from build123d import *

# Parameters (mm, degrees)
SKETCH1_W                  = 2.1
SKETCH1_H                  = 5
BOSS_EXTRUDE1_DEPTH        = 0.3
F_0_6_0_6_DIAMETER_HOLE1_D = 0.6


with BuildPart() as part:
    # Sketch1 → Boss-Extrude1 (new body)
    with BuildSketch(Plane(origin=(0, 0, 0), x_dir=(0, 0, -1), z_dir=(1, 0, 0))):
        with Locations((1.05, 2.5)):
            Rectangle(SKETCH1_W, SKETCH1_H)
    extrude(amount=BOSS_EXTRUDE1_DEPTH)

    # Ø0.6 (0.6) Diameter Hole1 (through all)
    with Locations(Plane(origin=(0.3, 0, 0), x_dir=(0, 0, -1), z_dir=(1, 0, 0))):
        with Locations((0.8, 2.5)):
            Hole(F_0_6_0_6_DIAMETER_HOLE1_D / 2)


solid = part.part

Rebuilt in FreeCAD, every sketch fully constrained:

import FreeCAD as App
import Part
import Sketcher

V = App.Vector

doc = App.newDocument("Part")
body = doc.addObject("PartDesign::Body", "Body")

sketch1 = body.newObject("Sketcher::SketchObject", "Sketch")
sketch1.AttachmentSupport = (doc.getObject("YZ_Plane"), [""])
sketch1.MapMode = "FlatFace"
sketch1.addGeometry([
    Part.LineSegment(V(5, 0, 0), V(0, 0, 0)),
    Part.LineSegment(V(0, 0, 0), V(0, -2.1, 0)),
    Part.LineSegment(V(0, -2.1, 0), V(5, -2.1, 0)),
    Part.LineSegment(V(5, -2.1, 0), V(5, 0, 0)),
], False)
sketch1.addConstraint([
    Sketcher.Constraint("Coincident", 0, 2, 1, 1),
    Sketcher.Constraint("Coincident", 1, 2, 2, 1),
    Sketcher.Constraint("Coincident", 2, 2, 3, 1),
    Sketcher.Constraint("Coincident", 3, 2, 0, 1),
    Sketcher.Constraint("Horizontal", 0),
    Sketcher.Constraint("Vertical", 1),
    Sketcher.Constraint("Horizontal", 2),
    Sketcher.Constraint("Vertical", 3),
    Sketcher.Constraint("Coincident", 0, 2, -1, 1),
    Sketcher.Constraint("DistanceX", 0, 2, 0, 1, 5.0),
    Sketcher.Constraint("DistanceY", 1, 2, 1, 1, 2.1),
])
pad1 = body.newObject("PartDesign::Pad", "Pad")
pad1.Profile = sketch1
pad1.Length = 0.3

sketch2 = body.newObject("Sketcher::SketchObject", "Sketch001")
sketch2.AttachmentSupport = (doc.getObject("YZ_Plane"), [""])
sketch2.MapMode = "FlatFace"
sketch2.AttachmentOffset = App.Placement(V(0, 0, 0.3), App.Rotation())
sketch2.addGeometry(Part.Circle(V(2.5, -0.8, 0), V(0, 0, 1), 0.3), False)
sketch2.addConstraint([
    Sketcher.Constraint("Diameter", 0, 0.6),
    Sketcher.Constraint("DistanceX", -1, 1, 0, 3, 2.5),
    Sketcher.Constraint("DistanceY", 0, 3, -1, 1, 0.8),
])
doc.recompute()
hole = body.newObject("PartDesign::Hole", "Hole")
hole.Profile = sketch2
hole.ThreadType = "None"
hole.Diameter = 0.6
hole.DepthType = "ThroughAll"

doc.recompute()
